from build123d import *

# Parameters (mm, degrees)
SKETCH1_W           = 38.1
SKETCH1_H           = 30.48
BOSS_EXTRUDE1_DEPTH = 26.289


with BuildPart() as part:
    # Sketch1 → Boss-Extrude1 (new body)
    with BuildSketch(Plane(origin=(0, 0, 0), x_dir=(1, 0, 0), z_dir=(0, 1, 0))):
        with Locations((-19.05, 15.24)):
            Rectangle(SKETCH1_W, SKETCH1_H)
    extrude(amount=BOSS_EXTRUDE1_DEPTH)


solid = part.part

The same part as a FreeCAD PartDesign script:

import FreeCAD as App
import Part
import Sketcher

V = App.Vector
Q = App.Units.Quantity

doc = App.newDocument("Part")
body = doc.addObject("PartDesign::Body", "Body")

sketch1 = body.newObject("Sketcher::SketchObject", "Sketch")
sketch1.AttachmentSupport = (doc.getObject("XZ_Plane"), [""])
sketch1.MapMode = "FlatFace"
sketch1.addGeometry([
    Part.LineSegment(V(-38, -30, 0), V(-38, 0, 0)),
    Part.LineSegment(V(-38, 0, 0), V(0, 0, 0)),
    Part.LineSegment(V(0, 0, 0), V(0, -30, 0)),
    Part.LineSegment(V(0, -30, 0), V(-38, -30, 0)),
], False)
sketch1.addConstraint([
    Sketcher.Constraint("Coincident", 0, 2, 1, 1),
    Sketcher.Constraint("Coincident", 1, 2, 2, 1),
    Sketcher.Constraint("Coincident", 2, 2, 3, 1),
    Sketcher.Constraint("Coincident", 3, 2, 0, 1),
    Sketcher.Constraint("Vertical", 0),
    Sketcher.Constraint("Horizontal", 1),
    Sketcher.Constraint("Vertical", 2),
    Sketcher.Constraint("Horizontal", 3),
    Sketcher.Constraint("Coincident", 1, 2, -1, 1),
    Sketcher.Constraint("DistanceX", 1, 1, 1, 2, Q("1.5 in")),
    Sketcher.Constraint("DistanceY", 0, 1, 0, 2, Q("1.2 in")),
])
pad1 = body.newObject("PartDesign::Pad", "Pad")
pad1.Profile = sketch1
pad1.Length = Q("1.035 in")
pad1.Reversed = True

doc.recompute()
